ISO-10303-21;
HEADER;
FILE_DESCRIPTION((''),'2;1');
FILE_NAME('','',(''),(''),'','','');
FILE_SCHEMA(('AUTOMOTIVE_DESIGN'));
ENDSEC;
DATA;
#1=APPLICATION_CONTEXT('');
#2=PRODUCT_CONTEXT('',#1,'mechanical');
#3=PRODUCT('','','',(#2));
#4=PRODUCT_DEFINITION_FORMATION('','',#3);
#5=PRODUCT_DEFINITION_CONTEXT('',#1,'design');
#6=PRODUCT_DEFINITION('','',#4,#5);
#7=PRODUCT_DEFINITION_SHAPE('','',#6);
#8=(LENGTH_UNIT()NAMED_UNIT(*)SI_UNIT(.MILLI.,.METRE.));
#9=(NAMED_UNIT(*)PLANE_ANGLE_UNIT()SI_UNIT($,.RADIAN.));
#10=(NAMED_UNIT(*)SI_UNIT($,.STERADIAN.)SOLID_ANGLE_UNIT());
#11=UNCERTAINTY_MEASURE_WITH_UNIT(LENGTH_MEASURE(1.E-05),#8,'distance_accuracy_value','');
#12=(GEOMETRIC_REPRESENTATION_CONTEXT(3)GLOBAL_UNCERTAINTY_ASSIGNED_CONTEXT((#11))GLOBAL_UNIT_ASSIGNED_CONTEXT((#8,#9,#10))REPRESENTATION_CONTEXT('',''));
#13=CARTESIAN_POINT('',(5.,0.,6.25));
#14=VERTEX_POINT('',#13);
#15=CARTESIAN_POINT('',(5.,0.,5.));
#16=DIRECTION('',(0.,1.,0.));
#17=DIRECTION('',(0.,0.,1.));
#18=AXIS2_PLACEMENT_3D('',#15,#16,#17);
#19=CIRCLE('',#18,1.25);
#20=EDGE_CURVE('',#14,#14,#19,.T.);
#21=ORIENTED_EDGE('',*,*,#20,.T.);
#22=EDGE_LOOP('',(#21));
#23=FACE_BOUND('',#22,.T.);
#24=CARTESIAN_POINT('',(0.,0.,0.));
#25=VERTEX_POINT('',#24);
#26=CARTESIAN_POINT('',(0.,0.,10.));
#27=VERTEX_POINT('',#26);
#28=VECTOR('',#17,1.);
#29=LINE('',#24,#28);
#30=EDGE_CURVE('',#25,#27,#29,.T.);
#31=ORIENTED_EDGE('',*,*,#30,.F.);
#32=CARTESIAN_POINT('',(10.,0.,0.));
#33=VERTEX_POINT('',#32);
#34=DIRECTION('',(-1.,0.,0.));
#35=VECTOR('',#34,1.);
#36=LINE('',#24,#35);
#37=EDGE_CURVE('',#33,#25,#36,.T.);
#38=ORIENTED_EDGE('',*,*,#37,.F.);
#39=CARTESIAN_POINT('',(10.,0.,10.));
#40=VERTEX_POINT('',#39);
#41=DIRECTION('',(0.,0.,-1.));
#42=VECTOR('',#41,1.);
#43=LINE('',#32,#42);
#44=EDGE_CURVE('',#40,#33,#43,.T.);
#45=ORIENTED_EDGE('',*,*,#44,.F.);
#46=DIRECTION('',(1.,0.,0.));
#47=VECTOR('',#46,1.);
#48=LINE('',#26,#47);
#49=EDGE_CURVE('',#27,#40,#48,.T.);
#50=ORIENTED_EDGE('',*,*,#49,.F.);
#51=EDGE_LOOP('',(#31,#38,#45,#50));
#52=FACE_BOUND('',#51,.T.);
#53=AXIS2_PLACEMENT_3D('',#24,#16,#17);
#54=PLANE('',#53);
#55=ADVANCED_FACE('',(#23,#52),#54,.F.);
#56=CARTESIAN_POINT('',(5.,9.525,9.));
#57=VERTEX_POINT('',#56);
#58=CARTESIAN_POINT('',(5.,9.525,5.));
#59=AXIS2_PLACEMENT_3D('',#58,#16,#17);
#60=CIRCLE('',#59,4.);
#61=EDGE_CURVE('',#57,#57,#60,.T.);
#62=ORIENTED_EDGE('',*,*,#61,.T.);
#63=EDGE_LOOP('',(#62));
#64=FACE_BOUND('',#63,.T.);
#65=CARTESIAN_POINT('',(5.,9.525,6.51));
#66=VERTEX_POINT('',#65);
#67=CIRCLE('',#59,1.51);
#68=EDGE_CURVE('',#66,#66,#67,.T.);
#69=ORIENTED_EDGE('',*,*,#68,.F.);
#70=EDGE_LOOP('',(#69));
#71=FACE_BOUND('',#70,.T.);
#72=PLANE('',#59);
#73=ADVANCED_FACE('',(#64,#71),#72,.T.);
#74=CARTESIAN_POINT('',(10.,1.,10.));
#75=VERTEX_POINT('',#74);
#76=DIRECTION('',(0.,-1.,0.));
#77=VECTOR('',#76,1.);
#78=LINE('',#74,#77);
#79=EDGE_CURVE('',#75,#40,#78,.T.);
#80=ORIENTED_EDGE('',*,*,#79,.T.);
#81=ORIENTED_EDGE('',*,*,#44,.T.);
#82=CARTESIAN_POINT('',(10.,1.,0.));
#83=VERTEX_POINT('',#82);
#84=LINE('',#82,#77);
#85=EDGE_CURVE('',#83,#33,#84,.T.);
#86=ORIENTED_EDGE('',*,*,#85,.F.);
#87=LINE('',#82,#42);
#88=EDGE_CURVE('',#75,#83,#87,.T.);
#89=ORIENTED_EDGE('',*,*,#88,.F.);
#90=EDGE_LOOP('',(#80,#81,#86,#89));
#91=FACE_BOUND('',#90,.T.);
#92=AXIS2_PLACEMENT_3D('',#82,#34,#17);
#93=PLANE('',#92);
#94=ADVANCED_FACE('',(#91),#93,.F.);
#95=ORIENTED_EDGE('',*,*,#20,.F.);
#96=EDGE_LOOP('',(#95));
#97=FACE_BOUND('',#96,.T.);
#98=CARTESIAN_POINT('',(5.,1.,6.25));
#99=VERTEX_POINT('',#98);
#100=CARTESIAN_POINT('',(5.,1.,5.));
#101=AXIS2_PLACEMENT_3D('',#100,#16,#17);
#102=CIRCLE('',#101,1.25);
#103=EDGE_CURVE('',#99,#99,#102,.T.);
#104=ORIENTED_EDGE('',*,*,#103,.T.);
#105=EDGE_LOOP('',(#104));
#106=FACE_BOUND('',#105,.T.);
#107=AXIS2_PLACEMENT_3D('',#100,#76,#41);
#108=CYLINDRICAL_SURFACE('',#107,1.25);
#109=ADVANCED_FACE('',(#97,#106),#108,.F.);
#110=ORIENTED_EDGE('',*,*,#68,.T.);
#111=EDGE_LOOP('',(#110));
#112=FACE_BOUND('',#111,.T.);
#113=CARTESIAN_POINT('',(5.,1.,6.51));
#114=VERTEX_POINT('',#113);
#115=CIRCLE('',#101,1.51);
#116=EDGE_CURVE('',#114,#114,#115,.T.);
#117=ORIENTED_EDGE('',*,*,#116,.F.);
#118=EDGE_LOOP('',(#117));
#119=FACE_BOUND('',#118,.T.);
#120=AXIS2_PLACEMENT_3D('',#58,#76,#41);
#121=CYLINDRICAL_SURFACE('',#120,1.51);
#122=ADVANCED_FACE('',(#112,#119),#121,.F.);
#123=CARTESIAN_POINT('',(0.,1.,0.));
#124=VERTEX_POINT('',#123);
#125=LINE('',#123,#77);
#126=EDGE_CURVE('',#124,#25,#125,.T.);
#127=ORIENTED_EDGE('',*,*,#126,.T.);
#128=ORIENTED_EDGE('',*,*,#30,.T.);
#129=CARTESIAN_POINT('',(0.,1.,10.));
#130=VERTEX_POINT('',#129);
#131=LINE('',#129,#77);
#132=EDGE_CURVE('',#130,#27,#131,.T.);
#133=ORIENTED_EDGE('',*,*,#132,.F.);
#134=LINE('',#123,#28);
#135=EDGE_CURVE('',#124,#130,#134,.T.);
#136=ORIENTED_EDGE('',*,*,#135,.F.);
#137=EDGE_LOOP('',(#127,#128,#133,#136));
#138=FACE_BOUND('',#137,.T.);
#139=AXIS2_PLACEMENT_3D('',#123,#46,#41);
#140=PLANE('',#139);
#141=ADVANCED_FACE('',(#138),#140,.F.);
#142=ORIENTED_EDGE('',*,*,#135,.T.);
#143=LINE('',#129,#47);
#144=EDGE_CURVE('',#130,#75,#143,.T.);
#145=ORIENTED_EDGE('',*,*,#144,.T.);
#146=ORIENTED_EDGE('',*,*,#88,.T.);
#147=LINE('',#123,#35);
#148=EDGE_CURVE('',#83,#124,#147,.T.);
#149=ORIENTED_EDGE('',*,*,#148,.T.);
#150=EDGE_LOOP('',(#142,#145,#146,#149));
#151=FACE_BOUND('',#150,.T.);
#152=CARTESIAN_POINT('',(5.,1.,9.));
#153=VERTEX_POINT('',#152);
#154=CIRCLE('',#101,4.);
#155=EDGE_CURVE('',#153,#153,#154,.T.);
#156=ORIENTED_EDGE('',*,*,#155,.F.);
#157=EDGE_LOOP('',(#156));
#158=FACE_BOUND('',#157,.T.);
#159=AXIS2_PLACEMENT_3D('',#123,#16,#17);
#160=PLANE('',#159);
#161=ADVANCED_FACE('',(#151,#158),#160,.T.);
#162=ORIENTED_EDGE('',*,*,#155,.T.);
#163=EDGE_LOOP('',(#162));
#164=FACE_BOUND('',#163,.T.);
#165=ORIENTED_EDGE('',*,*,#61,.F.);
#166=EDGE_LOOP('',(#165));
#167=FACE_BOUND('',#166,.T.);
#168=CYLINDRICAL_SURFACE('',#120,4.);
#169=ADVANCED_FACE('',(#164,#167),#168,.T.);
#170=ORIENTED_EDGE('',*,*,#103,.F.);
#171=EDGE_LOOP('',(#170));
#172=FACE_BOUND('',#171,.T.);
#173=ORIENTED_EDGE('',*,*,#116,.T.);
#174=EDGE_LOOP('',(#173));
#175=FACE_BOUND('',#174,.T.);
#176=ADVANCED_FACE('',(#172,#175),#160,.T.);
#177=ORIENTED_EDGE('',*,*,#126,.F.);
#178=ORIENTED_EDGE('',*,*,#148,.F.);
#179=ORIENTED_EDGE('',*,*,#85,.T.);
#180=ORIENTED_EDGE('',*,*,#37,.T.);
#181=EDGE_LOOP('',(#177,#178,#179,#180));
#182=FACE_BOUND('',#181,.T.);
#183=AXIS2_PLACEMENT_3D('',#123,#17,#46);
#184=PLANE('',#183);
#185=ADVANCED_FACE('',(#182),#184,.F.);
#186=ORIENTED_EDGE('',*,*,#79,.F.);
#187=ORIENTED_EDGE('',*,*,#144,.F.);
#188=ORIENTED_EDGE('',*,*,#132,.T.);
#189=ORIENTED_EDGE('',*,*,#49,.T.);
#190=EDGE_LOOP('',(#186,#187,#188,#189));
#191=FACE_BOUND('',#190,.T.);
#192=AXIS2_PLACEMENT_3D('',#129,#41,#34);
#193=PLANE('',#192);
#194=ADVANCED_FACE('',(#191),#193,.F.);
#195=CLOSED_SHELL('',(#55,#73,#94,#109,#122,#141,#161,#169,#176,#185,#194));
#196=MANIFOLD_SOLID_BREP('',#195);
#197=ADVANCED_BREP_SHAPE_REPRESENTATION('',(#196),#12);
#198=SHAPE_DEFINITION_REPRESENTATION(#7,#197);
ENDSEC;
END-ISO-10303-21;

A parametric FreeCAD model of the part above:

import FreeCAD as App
import Part
import Sketcher
Q = App.Units.Quantity

doc = App.newDocument("Part")
params = doc.addObject("Spreadsheet::Sheet", "Params")
for row, (alias, value) in enumerate([
    ("sketch1_diameter", "2.5 mm"),
    ("sketch1_width", "10 mm"),
    ("pad1_length", "1 mm"),
    ("sketch2_diameter", "8 mm"),
    ("sketch2_diameter2", "3.02 mm"),
    ("pad2_length", "8.525 mm"),
], start=1):
    params.set(f"A{row}", alias)
    params.set(f"B{row}", "=" + value)
    params.setAlias(f"B{row}", alias)

body = doc.addObject("PartDesign::Body", "Body")

# Sketch on XZ plane
sketch1 = body.newObject("Sketcher::SketchObject", "Sketch")
sketch1.AttachmentSupport = (doc.getObject("XZ_Plane"), [""])
sketch1.MapMode = "FlatFace"
sketch1.addGeometry([
    Part.LineSegment(App.Vector(0, 0, 0), App.Vector(0, 10, 0)),  # 0
    Part.LineSegment(App.Vector(0, 10, 0), App.Vector(10, 10, 0)),  # 1
    Part.LineSegment(App.Vector(10, 10, 0), App.Vector(10, 0, 0)),  # 2
    Part.LineSegment(App.Vector(10, 0, 0), App.Vector(0, 0, 0)),  # 3
    Part.Circle(App.Vector(5, 5, 0), App.Vector(0, 0, 1), 1.2),  # 4
], False)
sketch1.addConstraint([
    Sketcher.Constraint("Coincident", 0, 2, 1, 1),
    Sketcher.Constraint("Coincident", 1, 2, 2, 1),
    Sketcher.Constraint("Coincident", 2, 2, 3, 1),
    Sketcher.Constraint("Coincident", 3, 2, 0, 1),
    Sketcher.Constraint("Vertical", 0),
    Sketcher.Constraint("Horizontal", 1),
    Sketcher.Constraint("Vertical", 2),
    Sketcher.Constraint("Horizontal", 3),
    Sketcher.Constraint("Coincident", 3, 2, -1, 1),
    Sketcher.Constraint("Equal", 3, 0),
    Sketcher.Constraint("Diameter", 4, Q("2.5 mm")),
    Sketcher.Constraint("DistanceX", 1, 1, 1, 2, Q("10 mm")),
    Sketcher.Constraint("DistanceX", -1, 1, 4, 3, Q("5 mm")),
    Sketcher.Constraint("DistanceY", -1, 1, 4, 3, Q("5 mm")),
])
sketch1.setExpression("Constraints[10]", "Params.sketch1_diameter")
sketch1.setExpression("Constraints[11]", "Params.sketch1_width")
pad1 = body.newObject("PartDesign::Pad", "Pad")
pad1.Profile = sketch1
pad1.setExpression("Length", "Params.pad1_length")
pad1.Reversed = True

# Sketch on XZ plane
sketch2 = body.newObject("Sketcher::SketchObject", "Sketch001")
sketch2.AttachmentSupport = (doc.getObject("XZ_Plane"), [""])
sketch2.MapMode = "FlatFace"
sketch2.AttachmentOffset = App.Placement(App.Vector(0, 0, -1), App.Rotation())
sketch2.addGeometry([
    Part.Circle(App.Vector(5, 5, 0), App.Vector(0, 0, 1), 4),
    Part.Circle(App.Vector(5, 5, 0), App.Vector(0, 0, 1), 1.5),
], False)
sketch2.addConstraint([
    Sketcher.Constraint("Coincident", 1, 3, 0, 3),
    Sketcher.Constraint("Diameter", 0, Q("8 mm")),
    Sketcher.Constraint("Diameter", 1, Q("3.02 mm")),
    Sketcher.Constraint("DistanceX", -1, 1, 0, 3, Q("5 mm")),
    Sketcher.Constraint("DistanceY", -1, 1, 0, 3, Q("5 mm")),
])
sketch2.setExpression("Constraints[1]", "Params.sketch2_diameter")
sketch2.setExpression("Constraints[2]", "Params.sketch2_diameter2")
pad2 = body.newObject("PartDesign::Pad", "Pad001")
pad2.Profile = sketch2
pad2.setExpression("Length", "Params.pad2_length")
pad2.Reversed = True

doc.recompute()
